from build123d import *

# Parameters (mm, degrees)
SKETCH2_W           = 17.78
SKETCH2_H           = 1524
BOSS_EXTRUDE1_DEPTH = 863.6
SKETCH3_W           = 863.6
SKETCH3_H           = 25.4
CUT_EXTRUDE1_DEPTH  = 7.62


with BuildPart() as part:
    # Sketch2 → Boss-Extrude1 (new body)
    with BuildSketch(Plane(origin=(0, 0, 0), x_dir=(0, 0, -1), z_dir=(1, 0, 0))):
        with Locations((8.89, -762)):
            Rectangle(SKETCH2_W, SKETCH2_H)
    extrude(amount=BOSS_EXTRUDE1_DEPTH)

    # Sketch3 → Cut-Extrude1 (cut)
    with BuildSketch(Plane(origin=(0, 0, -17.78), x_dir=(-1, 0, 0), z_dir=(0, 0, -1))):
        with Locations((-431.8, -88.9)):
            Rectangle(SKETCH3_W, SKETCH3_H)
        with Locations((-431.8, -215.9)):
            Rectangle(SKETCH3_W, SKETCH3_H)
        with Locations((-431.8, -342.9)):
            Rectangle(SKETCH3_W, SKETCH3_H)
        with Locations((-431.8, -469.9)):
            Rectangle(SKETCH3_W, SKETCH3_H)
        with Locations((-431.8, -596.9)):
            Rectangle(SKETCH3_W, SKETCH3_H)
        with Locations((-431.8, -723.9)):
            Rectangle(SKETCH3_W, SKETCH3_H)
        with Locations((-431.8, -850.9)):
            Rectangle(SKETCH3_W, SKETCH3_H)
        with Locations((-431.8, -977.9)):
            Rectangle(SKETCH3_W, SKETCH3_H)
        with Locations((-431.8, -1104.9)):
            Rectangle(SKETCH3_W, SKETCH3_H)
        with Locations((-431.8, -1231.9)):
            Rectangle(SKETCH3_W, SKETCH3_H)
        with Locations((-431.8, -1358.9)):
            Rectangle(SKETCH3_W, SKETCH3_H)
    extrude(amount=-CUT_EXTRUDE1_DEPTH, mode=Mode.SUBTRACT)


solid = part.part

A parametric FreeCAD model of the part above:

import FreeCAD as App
import Part
import Sketcher
Q = App.Units.Quantity

doc = App.newDocument("Part")
params = doc.addObject("Spreadsheet::Sheet", "Params")
for row, (alias, value) in enumerate([
    ("sketch1_width", "60 in"),
    ("sketch1_height", "0.7 in"),
    ("pad1_length", "34 in"),
    ("sketch2_width", "34 in"),
    ("sketch2_height", "1 in"),
    ("pocket1_length", "0.3 in"),
], start=1):
    params.set(f"A{row}", alias)
    params.set(f"B{row}", "=" + value)
    params.setAlias(f"B{row}", alias)

body = doc.addObject("PartDesign::Body", "Body")

sketch1 = body.newObject("Sketcher::SketchObject", "Sketch")
sketch1.AttachmentSupport = (doc.getObject("YZ_Plane"), [""])
sketch1.MapMode = "FlatFace"
sketch1.addGeometry(Part.LineSegment(App.Vector(0, 0, 0), App.Vector(-1524, 0, 0)), False)
sketch1.addGeometry(Part.LineSegment(App.Vector(-1524, 0, 0), App.Vector(-1524, -18, 0)), False)
sketch1.addGeometry(Part.LineSegment(App.Vector(-1524, -18, 0), App.Vector(0, -18, 0)), False)
sketch1.addGeometry(Part.LineSegment(App.Vector(0, -18, 0), App.Vector(0, 0, 0)), False)
sketch1.addConstraint(Sketcher.Constraint("Coincident", 0, 2, 1, 1))
sketch1.addConstraint(Sketcher.Constraint("Coincident", 1, 2, 2, 1))
sketch1.addConstraint(Sketcher.Constraint("Coincident", 2, 2, 3, 1))
sketch1.addConstraint(Sketcher.Constraint("Coincident", 3, 2, 0, 1))
sketch1.addConstraint(Sketcher.Constraint("Horizontal", 0))
sketch1.addConstraint(Sketcher.Constraint("Vertical", 1))
sketch1.addConstraint(Sketcher.Constraint("Horizontal", 2))
sketch1.addConstraint(Sketcher.Constraint("Vertical", 3))
sketch1.addConstraint(Sketcher.Constraint("Coincident", 3, 2, -1, 1))
sketch1.addConstraint(Sketcher.Constraint("DistanceX", 0, 2, 0, 1, Q("60 in")))
sketch1.addConstraint(Sketcher.Constraint("DistanceY", 1, 2, 1, 1, Q("0.7 in")))
sketch1.setExpression("Constraints[9]", "Params.sketch1_width")
sketch1.setExpression("Constraints[10]", "Params.sketch1_height")
pad1 = body.newObject("PartDesign::Pad", "Pad")
pad1.Profile = sketch1
pad1.setExpression("Length", "Params.pad1_length")

sketch2 = body.newObject("Sketcher::SketchObject", "Sketch001")
sketch2.AttachmentSupport = (doc.getObject("XY_Plane"), [""])
sketch2.MapMode = "FlatFace"
sketch2.AttachmentOffset = App.Placement(App.Vector(0, 0, -0.7 * 25.4), App.Rotation())
sketch2.addGeometry(Part.LineSegment(App.Vector(864, -76, 0), App.Vector(864, -102, 0)), False)
sketch2.addGeometry(Part.LineSegment(App.Vector(864, -102, 0), App.Vector(0, -102, 0)), False)
sketch2.addGeometry(Part.LineSegment(App.Vector(0, -102, 0), App.Vector(0, -76, 0)), False)
sketch2.addGeometry(Part.LineSegment(App.Vector(0, -76, 0), App.Vector(864, -76, 0)), False)
sketch2.addGeometry(Part.LineSegment(App.Vector(864, -203, 0), App.Vector(864, -229, 0)), False)
sketch2.addGeometry(Part.LineSegment(App.Vector(864, -229, 0), App.Vector(0, -229, 0)), False)
sketch2.addGeometry(Part.LineSegment(App.Vector(0, -229, 0), App.Vector(0, -203, 0)), False)
sketch2.addGeometry(Part.LineSegment(App.Vector(0, -203, 0), App.Vector(864, -203, 0)), False)
sketch2.addGeometry(Part.LineSegment(App.Vector(864, -330, 0), App.Vector(864, -356, 0)), False)
sketch2.addGeometry(Part.LineSegment(App.Vector(864, -356, 0), App.Vector(0, -356, 0)), False)
sketch2.addGeometry(Part.LineSegment(App.Vector(0, -356, 0), App.Vector(0, -330, 0)), False)
sketch2.addGeometry(Part.LineSegment(App.Vector(0, -330, 0), App.Vector(864, -330, 0)), False)
sketch2.addGeometry(Part.LineSegment(App.Vector(864, -457, 0), App.Vector(864, -483, 0)), False)
sketch2.addGeometry(Part.LineSegment(App.Vector(864, -483, 0), App.Vector(0, -483, 0)), False)
sketch2.addGeometry(Part.LineSegment(App.Vector(0, -483, 0), App.Vector(0, -457, 0)), False)
sketch2.addGeometry(Part.LineSegment(App.Vector(0, -457, 0), App.Vector(864, -457, 0)), False)
sketch2.addGeometry(Part.LineSegment(App.Vector(864, -584, 0), App.Vector(864, -610, 0)), False)
sketch2.addGeometry(Part.LineSegment(App.Vector(864, -610, 0), App.Vector(0, -610, 0)), False)
sketch2.addGeometry(Part.LineSegment(App.Vector(0, -610, 0), App.Vector(0, -584, 0)), False)
sketch2.addGeometry(Part.LineSegment(App.Vector(0, -584, 0), App.Vector(864, -584, 0)), False)
sketch2.addGeometry(Part.LineSegment(App.Vector(864, -711, 0), App.Vector(864, -737, 0)), False)
sketch2.addGeometry(Part.LineSegment(App.Vector(864, -737, 0), App.Vector(0, -737, 0)), False)
sketch2.addGeometry(Part.LineSegment(App.Vector(0, -737, 0), App.Vector(0, -711, 0)), False)
sketch2.addGeometry(Part.LineSegment(App.Vector(0, -711, 0), App.Vector(864, -711, 0)), False)
sketch2.addGeometry(Part.LineSegment(App.Vector(864, -838, 0), App.Vector(864, -864, 0)), False)
sketch2.addGeometry(Part.LineSegment(App.Vector(864, -864, 0), App.Vector(0, -864, 0)), False)
sketch2.addGeometry(Part.LineSegment(App.Vector(0, -864, 0), App.Vector(0, -838, 0)), False)
sketch2.addGeometry(Part.LineSegment(App.Vector(0, -838, 0), App.Vector(864, -838, 0)), False)
sketch2.addGeometry(Part.LineSegment(App.Vector(864, -965, 0), App.Vector(864, -991, 0)), False)
sketch2.addGeometry(Part.LineSegment(App.Vector(864, -991, 0), App.Vector(0, -991, 0)), False)
sketch2.addGeometry(Part.LineSegment(App.Vector(0, -991, 0), App.Vector(0, -965, 0)), False)
sketch2.addGeometry(Part.LineSegment(App.Vector(0, -965, 0), App.Vector(864, -965, 0)), False)
sketch2.addGeometry(Part.LineSegment(App.Vector(864, -1092, 0), App.Vector(864, -1118, 0)), False)
sketch2.addGeometry(Part.LineSegment(App.Vector(864, -1118, 0), App.Vector(0, -1118, 0)), False)
sketch2.addGeometry(Part.LineSegment(App.Vector(0, -1118, 0), App.Vector(0, -1092, 0)), False)
sketch2.addGeometry(Part.LineSegment(App.Vector(0, -1092, 0), App.Vector(864, -1092, 0)), False)
sketch2.addGeometry(Part.LineSegment(App.Vector(864, -1219, 0), App.Vector(864, -1245, 0)), False)
sketch2.addGeometry(Part.LineSegment(App.Vector(864, -1245, 0), App.Vector(0, -1245, 0)), False)
sketch2.addGeometry(Part.LineSegment(App.Vector(0, -1245, 0), App.Vector(0, -1219, 0)), False)
sketch2.addGeometry(Part.LineSegment(App.Vector(0, -1219, 0), App.Vector(864, -1219, 0)), False)
sketch2.addGeometry(Part.LineSegment(App.Vector(864, -1346, 0), App.Vector(864, -1372, 0)), False)
sketch2.addGeometry(Part.LineSegment(App.Vector(864, -1372, 0), App.Vector(0, -1372, 0)), False)
sketch2.addGeometry(Part.LineSegment(App.Vector(0, -1372, 0), App.Vector(0, -1346, 0)), False)
sketch2.addGeometry(Part.LineSegment(App.Vector(0, -1346, 0), App.Vector(864, -1346, 0)), False)
sketch2.addConstraint(Sketcher.Constraint("Coincident", 0, 2, 1, 1))
sketch2.addConstraint(Sketcher.Constraint("Coincident", 1, 2, 2, 1))
sketch2.addConstraint(Sketcher.Constraint("Coincident", 2, 2, 3, 1))
sketch2.addConstraint(Sketcher.Constraint("Coincident", 3, 2, 0, 1))
sketch2.addConstraint(Sketcher.Constraint("Coincident", 4, 2, 5, 1))
sketch2.addConstraint(Sketcher.Constraint("Coincident", 5, 2, 6, 1))
sketch2.addConstraint(Sketcher.Constraint("Coincident", 6, 2, 7, 1))
sketch2.addConstraint(Sketcher.Constraint("Coincident", 7, 2, 4, 1))
sketch2.addConstraint(Sketcher.Constraint("Coincident", 8, 2, 9, 1))
sketch2.addConstraint(Sketcher.Constraint("Coincident", 9, 2, 10, 1))
sketch2.addConstraint(Sketcher.Constraint("Coincident", 10, 2, 11, 1))
sketch2.addConstraint(Sketcher.Constraint("Coincident", 11, 2, 8, 1))
sketch2.addConstraint(Sketcher.Constraint("Coincident", 12, 2, 13, 1))
sketch2.addConstraint(Sketcher.Constraint("Coincident", 13, 2, 14, 1))
sketch2.addConstraint(Sketcher.Constraint("Coincident", 14, 2, 15, 1))
sketch2.addConstraint(Sketcher.Constraint("Coincident", 15, 2, 12, 1))
sketch2.addConstraint(Sketcher.Constraint("Coincident", 16, 2, 17, 1))
sketch2.addConstraint(Sketcher.Constraint("Coincident", 17, 2, 18, 1))
sketch2.addConstraint(Sketcher.Constraint("Coincident", 18, 2, 19, 1))
sketch2.addConstraint(Sketcher.Constraint("Coincident", 19, 2, 16, 1))
sketch2.addConstraint(Sketcher.Constraint("Coincident", 20, 2, 21, 1))
sketch2.addConstraint(Sketcher.Constraint("Coincident", 21, 2, 22, 1))
sketch2.addConstraint(Sketcher.Constraint("Coincident", 22, 2, 23, 1))
sketch2.addConstraint(Sketcher.Constraint("Coincident", 23, 2, 20, 1))
sketch2.addConstraint(Sketcher.Constraint("Coincident", 24, 2, 25, 1))
sketch2.addConstraint(Sketcher.Constraint("Coincident", 25, 2, 26, 1))
sketch2.addConstraint(Sketcher.Constraint("Coincident", 26, 2, 27, 1))
sketch2.addConstraint(Sketcher.Constraint("Coincident", 27, 2, 24, 1))
sketch2.addConstraint(Sketcher.Constraint("Coincident", 28, 2, 29, 1))
sketch2.addConstraint(Sketcher.Constraint("Coincident", 29, 2, 30, 1))
sketch2.addConstraint(Sketcher.Constraint("Coincident", 30, 2, 31, 1))
sketch2.addConstraint(Sketcher.Constraint("Coincident", 31, 2, 28, 1))
sketch2.addConstraint(Sketcher.Constraint("Coincident", 32, 2, 33, 1))
sketch2.addConstraint(Sketcher.Constraint("Coincident", 33, 2, 34, 1))
sketch2.addConstraint(Sketcher.Constraint("Coincident", 34, 2, 35, 1))
sketch2.addConstraint(Sketcher.Constraint("Coincident", 35, 2, 32, 1))
sketch2.addConstraint(Sketcher.Constraint("Coincident", 36, 2, 37, 1))
sketch2.addConstraint(Sketcher.Constraint("Coincident", 37, 2, 38, 1))
sketch2.addConstraint(Sketcher.Constraint("Coincident", 38, 2, 39, 1))
sketch2.addConstraint(Sketcher.Constraint("Coincident", 39, 2, 36, 1))
sketch2.addConstraint(Sketcher.Constraint("Coincident", 40, 2, 41, 1))
sketch2.addConstraint(Sketcher.Constraint("Coincident", 41, 2, 42, 1))
sketch2.addConstraint(Sketcher.Constraint("Coincident", 42, 2, 43, 1))
sketch2.addConstraint(Sketcher.Constraint("Coincident", 43, 2, 40, 1))
sketch2.addConstraint(Sketcher.Constraint("Vertical", 0))
sketch2.addConstraint(Sketcher.Constraint("Horizontal", 1))
sketch2.addConstraint(Sketcher.Constraint("Vertical", 2))
sketch2.addConstraint(Sketcher.Constraint("Horizontal", 3))
sketch2.addConstraint(Sketcher.Constraint("Vertical", 4))
sketch2.addConstraint(Sketcher.Constraint("Horizontal", 5))
sketch2.addConstraint(Sketcher.Constraint("Vertical", 6))
sketch2.addConstraint(Sketcher.Constraint("Horizontal", 7))
sketch2.addConstraint(Sketcher.Constraint("Vertical", 8))
sketch2.addConstraint(Sketcher.Constraint("Horizontal", 9))
sketch2.addConstraint(Sketcher.Constraint("Vertical", 10))
sketch2.addConstraint(Sketcher.Constraint("Horizontal", 11))
sketch2.addConstraint(Sketcher.Constraint("Vertical", 12))
sketch2.addConstraint(Sketcher.Constraint("Horizontal", 13))
sketch2.addConstraint(Sketcher.Constraint("Vertical", 14))
sketch2.addConstraint(Sketcher.Constraint("Horizontal", 15))
sketch2.addConstraint(Sketcher.Constraint("Vertical", 16))
sketch2.addConstraint(Sketcher.Constraint("Horizontal", 17))
sketch2.addConstraint(Sketcher.Constraint("Vertical", 18))
sketch2.addConstraint(Sketcher.Constraint("Horizontal", 19))
sketch2.addConstraint(Sketcher.Constraint("Vertical", 20))
sketch2.addConstraint(Sketcher.Constraint("Horizontal", 21))
sketch2.addConstraint(Sketcher.Constraint("Vertical", 22))
sketch2.addConstraint(Sketcher.Constraint("Horizontal", 23))
sketch2.addConstraint(Sketcher.Constraint("Vertical", 24))
sketch2.addConstraint(Sketcher.Constraint("Horizontal", 25))
sketch2.addConstraint(Sketcher.Constraint("Vertical", 26))
sketch2.addConstraint(Sketcher.Constraint("Horizontal", 27))
sketch2.addConstraint(Sketcher.Constraint("Vertical", 28))
sketch2.addConstraint(Sketcher.Constraint("Horizontal", 29))
sketch2.addConstraint(Sketcher.Constraint("Vertical", 30))
sketch2.addConstraint(Sketcher.Constraint("Horizontal", 31))
sketch2.addConstraint(Sketcher.Constraint("Vertical", 32))
sketch2.addConstraint(Sketcher.Constraint("Horizontal", 33))
sketch2.addConstraint(Sketcher.Constraint("Vertical", 34))
sketch2.addConstraint(Sketcher.Constraint("Horizontal", 35))
sketch2.addConstraint(Sketcher.Constraint("Vertical", 36))
sketch2.addConstraint(Sketcher.Constraint("Horizontal", 37))
sketch2.addConstraint(Sketcher.Constraint("Vertical", 38))
sketch2.addConstraint(Sketcher.Constraint("Horizontal", 39))
sketch2.addConstraint(Sketcher.Constraint("Vertical", 40))
sketch2.addConstraint(Sketcher.Constraint("Horizontal", 41))
sketch2.addConstraint(Sketcher.Constraint("Vertical", 42))
sketch2.addConstraint(Sketcher.Constraint("Horizontal", 43))
sketch2.addConstraint(Sketcher.Constraint("PointOnObject", 1, 2, -2))
sketch2.addConstraint(Sketcher.Constraint("PointOnObject", 5, 2, -2))
sketch2.addConstraint(Sketcher.Constraint("PointOnObject", 9, 2, -2))
sketch2.addConstraint(Sketcher.Constraint("PointOnObject", 13, 2, -2))
sketch2.addConstraint(Sketcher.Constraint("PointOnObject", 17, 2, -2))
sketch2.addConstraint(Sketcher.Constraint("PointOnObject", 21, 2, -2))
sketch2.addConstraint(Sketcher.Constraint("PointOnObject", 25, 2, -2))
sketch2.addConstraint(Sketcher.Constraint("PointOnObject", 29, 2, -2))
sketch2.addConstraint(Sketcher.Constraint("PointOnObject", 33, 2, -2))
sketch2.addConstraint(Sketcher.Constraint("PointOnObject", 37, 2, -2))
sketch2.addConstraint(Sketcher.Constraint("PointOnObject", 41, 2, -2))
sketch2.addConstraint(Sketcher.Constraint("Vertical", 3, 2, 4, 2))
sketch2.addConstraint(Sketcher.Constraint("Vertical", 7, 2, 8, 2))
sketch2.addConstraint(Sketcher.Constraint("Vertical", 11, 2, 12, 2))
sketch2.addConstraint(Sketcher.Constraint("Vertical", 15, 2, 16, 2))
sketch2.addConstraint(Sketcher.Constraint("Vertical", 19, 2, 20, 2))
sketch2.addConstraint(Sketcher.Constraint("Vertical", 23, 2, 24, 2))
sketch2.addConstraint(Sketcher.Constraint("Vertical", 27, 2, 28, 2))
sketch2.addConstraint(Sketcher.Constraint("Vertical", 31, 2, 32, 2))
sketch2.addConstraint(Sketcher.Constraint("Vertical", 35, 2, 36, 2))
sketch2.addConstraint(Sketcher.Constraint("Vertical", 39, 2, 40, 2))
sketch2.addConstraint(Sketcher.Constraint("Equal", 2, 4))
sketch2.addConstraint(Sketcher.Constraint("Equal", 6, 8))
sketch2.addConstraint(Sketcher.Constraint("Equal", 10, 12))
sketch2.addConstraint(Sketcher.Constraint("Equal", 14, 16))
sketch2.addConstraint(Sketcher.Constraint("Equal", 18, 20))
sketch2.addConstraint(Sketcher.Constraint("Equal", 22, 24))
sketch2.addConstraint(Sketcher.Constraint("Equal", 26, 28))
sketch2.addConstraint(Sketcher.Constraint("Equal", 30, 32))
sketch2.addConstraint(Sketcher.Constraint("Equal", 34, 36))
sketch2.addConstraint(Sketcher.Constraint("Equal", 38, 40))
sketch2.addConstraint(Sketcher.Constraint("DistanceX", 1, 2, 1, 1, Q("34 in")))
sketch2.addConstraint(Sketcher.Constraint("DistanceY", 0, 2, 0, 1, Q("1 in")))
sketch2.addConstraint(Sketcher.Constraint("DistanceY", 0, 2, -1, 1, Q("4 in")))
sketch2.addConstraint(Sketcher.Constraint("DistanceY", 4, 2, -1, 1, Q("9 in")))
sketch2.addConstraint(Sketcher.Constraint("DistanceY", 8, 2, -1, 1, Q("14 in")))
sketch2.addConstraint(Sketcher.Constraint("DistanceY", 12, 2, -1, 1, Q("19 in")))
sketch2.addConstraint(Sketcher.Constraint("DistanceY", 16, 2, -1, 1, Q("24 in")))
sketch2.addConstraint(Sketcher.Constraint("DistanceY", 20, 2, -1, 1, Q("29 in")))
sketch2.addConstraint(Sketcher.Constraint("DistanceY", 24, 2, -1, 1, Q("34 in")))
sketch2.addConstraint(Sketcher.Constraint("DistanceY", 28, 2, -1, 1, Q("39 in")))
sketch2.addConstraint(Sketcher.Constraint("DistanceY", 32, 2, -1, 1, Q("44 in")))
sketch2.addConstraint(Sketcher.Constraint("DistanceY", 36, 2, -1, 1, Q("49 in")))
sketch2.addConstraint(Sketcher.Constraint("DistanceY", 40, 2, -1, 1, Q("54 in")))
sketch2.setExpression("Constraints[119]", "Params.sketch2_width")
sketch2.setExpression("Constraints[120]", "Params.sketch2_height")
pocket1 = body.newObject("PartDesign::Pocket", "Pocket")
pocket1.Profile = sketch2
pocket1.setExpression("Length", "Params.pocket1_length")
pocket1.Reversed = True

doc.recompute()
